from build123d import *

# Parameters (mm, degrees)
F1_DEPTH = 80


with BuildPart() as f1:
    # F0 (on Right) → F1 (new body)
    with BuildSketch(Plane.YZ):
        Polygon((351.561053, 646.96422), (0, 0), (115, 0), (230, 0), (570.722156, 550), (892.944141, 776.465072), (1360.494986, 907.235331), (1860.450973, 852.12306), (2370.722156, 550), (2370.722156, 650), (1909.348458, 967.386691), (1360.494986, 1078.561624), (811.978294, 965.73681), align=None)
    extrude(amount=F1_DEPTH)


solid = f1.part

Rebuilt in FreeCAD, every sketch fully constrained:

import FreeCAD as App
import Part
import Sketcher

V = App.Vector


def add_polygon(sketch, points):
    """Adds a closed chain of lines whose ends are joined by coincident constraints."""
    first, n = sketch.GeometryCount, len(points)
    for a, b in zip(points, points[1:] + points[:1]):
        sketch.addGeometry(Part.LineSegment(App.Vector(*a, 0), App.Vector(*b, 0)), False)
    for i in range(n):
        sketch.addConstraint(Sketcher.Constraint("Coincident", first + i, 2, first + (i + 1) % n, 1))

doc = App.newDocument("Part")
body = doc.addObject("PartDesign::Body", "Body")

sketch1 = body.newObject("Sketcher::SketchObject", "Sketch")
sketch1.AttachmentSupport = (doc.getObject("YZ_Plane"), [""])
sketch1.MapMode = "FlatFace"
add_polygon(sketch1, [(352, 647), (0, 0), (230, 0), (571, 550), (893, 776), (1360, 907), (1860, 852), (2371, 550), (2371, 650), (1909, 967), (1360, 1079), (812, 966)])
sketch1.addConstraint(Sketcher.Constraint("Horizontal", 1))
sketch1.addConstraint(Sketcher.Constraint("Vertical", 7))
sketch1.addConstraint(Sketcher.Constraint("Coincident", 0, 2, -1, 1))
sketch1.addConstraint(Sketcher.Constraint("Horizontal", 2, 2, 6, 2))
sketch1.addConstraint(Sketcher.Constraint("Vertical", 4, 2, 9, 2))
sketch1.addConstraint(Sketcher.Constraint("Equal", 8, 9))
sketch1.addConstraint(Sketcher.Constraint("Equal", 9, 10))
sketch1.addConstraint(Sketcher.Constraint("Equal", 10, 11))
sketch1.addConstraint(Sketcher.Constraint("DistanceX", 1, 1, 1, 2, 230.0))
sketch1.addConstraint(Sketcher.Constraint("DistanceY", 7, 1, 7, 2, 100.0))
sketch1.addConstraint(Sketcher.Constraint("Distance", 8, 560.000001))
sketch1.addConstraint(Sketcher.Constraint("DistanceY", -1, 1, 2, 2, 550.0))
sketch1.addConstraint(Sketcher.Constraint("DistanceX", 2, 2, 6, 2, 1800.0))
sketch1.addConstraint(Sketcher.Constraint("Distance", 3, 393.844432))
sketch1.addConstraint(Sketcher.Constraint("Distance", 6, 593.005079))
sketch1.addConstraint(Sketcher.Constraint("DistanceX", -1, 1, 3, 2, 892.944141))
sketch1.addConstraint(Sketcher.Constraint("DistanceY", -1, 1, 3, 2, 776.465072))
sketch1.addConstraint(Sketcher.Constraint("DistanceY", -1, 1, 4, 2, 907.235331))
sketch1.addConstraint(Sketcher.Constraint("DistanceY", -1, 1, 5, 2, 852.12306))
sketch1.addConstraint(Sketcher.Constraint("DistanceX", -1, 1, 8, 2, 1909.348458))
sketch1.addConstraint(Sketcher.Constraint("DistanceY", -1, 1, 10, 2, 965.73681))
sketch1.addConstraint(Sketcher.Constraint("DistanceY", -1, 1, 11, 2, 646.96422))
sketch1.addConstraint(Sketcher.Constraint("DistanceX", 2, 2, 4, 2, 789.77283))
pad1 = body.newObject("PartDesign::Pad", "Pad")
pad1.Profile = sketch1
pad1.Length = 80

doc.recompute()
